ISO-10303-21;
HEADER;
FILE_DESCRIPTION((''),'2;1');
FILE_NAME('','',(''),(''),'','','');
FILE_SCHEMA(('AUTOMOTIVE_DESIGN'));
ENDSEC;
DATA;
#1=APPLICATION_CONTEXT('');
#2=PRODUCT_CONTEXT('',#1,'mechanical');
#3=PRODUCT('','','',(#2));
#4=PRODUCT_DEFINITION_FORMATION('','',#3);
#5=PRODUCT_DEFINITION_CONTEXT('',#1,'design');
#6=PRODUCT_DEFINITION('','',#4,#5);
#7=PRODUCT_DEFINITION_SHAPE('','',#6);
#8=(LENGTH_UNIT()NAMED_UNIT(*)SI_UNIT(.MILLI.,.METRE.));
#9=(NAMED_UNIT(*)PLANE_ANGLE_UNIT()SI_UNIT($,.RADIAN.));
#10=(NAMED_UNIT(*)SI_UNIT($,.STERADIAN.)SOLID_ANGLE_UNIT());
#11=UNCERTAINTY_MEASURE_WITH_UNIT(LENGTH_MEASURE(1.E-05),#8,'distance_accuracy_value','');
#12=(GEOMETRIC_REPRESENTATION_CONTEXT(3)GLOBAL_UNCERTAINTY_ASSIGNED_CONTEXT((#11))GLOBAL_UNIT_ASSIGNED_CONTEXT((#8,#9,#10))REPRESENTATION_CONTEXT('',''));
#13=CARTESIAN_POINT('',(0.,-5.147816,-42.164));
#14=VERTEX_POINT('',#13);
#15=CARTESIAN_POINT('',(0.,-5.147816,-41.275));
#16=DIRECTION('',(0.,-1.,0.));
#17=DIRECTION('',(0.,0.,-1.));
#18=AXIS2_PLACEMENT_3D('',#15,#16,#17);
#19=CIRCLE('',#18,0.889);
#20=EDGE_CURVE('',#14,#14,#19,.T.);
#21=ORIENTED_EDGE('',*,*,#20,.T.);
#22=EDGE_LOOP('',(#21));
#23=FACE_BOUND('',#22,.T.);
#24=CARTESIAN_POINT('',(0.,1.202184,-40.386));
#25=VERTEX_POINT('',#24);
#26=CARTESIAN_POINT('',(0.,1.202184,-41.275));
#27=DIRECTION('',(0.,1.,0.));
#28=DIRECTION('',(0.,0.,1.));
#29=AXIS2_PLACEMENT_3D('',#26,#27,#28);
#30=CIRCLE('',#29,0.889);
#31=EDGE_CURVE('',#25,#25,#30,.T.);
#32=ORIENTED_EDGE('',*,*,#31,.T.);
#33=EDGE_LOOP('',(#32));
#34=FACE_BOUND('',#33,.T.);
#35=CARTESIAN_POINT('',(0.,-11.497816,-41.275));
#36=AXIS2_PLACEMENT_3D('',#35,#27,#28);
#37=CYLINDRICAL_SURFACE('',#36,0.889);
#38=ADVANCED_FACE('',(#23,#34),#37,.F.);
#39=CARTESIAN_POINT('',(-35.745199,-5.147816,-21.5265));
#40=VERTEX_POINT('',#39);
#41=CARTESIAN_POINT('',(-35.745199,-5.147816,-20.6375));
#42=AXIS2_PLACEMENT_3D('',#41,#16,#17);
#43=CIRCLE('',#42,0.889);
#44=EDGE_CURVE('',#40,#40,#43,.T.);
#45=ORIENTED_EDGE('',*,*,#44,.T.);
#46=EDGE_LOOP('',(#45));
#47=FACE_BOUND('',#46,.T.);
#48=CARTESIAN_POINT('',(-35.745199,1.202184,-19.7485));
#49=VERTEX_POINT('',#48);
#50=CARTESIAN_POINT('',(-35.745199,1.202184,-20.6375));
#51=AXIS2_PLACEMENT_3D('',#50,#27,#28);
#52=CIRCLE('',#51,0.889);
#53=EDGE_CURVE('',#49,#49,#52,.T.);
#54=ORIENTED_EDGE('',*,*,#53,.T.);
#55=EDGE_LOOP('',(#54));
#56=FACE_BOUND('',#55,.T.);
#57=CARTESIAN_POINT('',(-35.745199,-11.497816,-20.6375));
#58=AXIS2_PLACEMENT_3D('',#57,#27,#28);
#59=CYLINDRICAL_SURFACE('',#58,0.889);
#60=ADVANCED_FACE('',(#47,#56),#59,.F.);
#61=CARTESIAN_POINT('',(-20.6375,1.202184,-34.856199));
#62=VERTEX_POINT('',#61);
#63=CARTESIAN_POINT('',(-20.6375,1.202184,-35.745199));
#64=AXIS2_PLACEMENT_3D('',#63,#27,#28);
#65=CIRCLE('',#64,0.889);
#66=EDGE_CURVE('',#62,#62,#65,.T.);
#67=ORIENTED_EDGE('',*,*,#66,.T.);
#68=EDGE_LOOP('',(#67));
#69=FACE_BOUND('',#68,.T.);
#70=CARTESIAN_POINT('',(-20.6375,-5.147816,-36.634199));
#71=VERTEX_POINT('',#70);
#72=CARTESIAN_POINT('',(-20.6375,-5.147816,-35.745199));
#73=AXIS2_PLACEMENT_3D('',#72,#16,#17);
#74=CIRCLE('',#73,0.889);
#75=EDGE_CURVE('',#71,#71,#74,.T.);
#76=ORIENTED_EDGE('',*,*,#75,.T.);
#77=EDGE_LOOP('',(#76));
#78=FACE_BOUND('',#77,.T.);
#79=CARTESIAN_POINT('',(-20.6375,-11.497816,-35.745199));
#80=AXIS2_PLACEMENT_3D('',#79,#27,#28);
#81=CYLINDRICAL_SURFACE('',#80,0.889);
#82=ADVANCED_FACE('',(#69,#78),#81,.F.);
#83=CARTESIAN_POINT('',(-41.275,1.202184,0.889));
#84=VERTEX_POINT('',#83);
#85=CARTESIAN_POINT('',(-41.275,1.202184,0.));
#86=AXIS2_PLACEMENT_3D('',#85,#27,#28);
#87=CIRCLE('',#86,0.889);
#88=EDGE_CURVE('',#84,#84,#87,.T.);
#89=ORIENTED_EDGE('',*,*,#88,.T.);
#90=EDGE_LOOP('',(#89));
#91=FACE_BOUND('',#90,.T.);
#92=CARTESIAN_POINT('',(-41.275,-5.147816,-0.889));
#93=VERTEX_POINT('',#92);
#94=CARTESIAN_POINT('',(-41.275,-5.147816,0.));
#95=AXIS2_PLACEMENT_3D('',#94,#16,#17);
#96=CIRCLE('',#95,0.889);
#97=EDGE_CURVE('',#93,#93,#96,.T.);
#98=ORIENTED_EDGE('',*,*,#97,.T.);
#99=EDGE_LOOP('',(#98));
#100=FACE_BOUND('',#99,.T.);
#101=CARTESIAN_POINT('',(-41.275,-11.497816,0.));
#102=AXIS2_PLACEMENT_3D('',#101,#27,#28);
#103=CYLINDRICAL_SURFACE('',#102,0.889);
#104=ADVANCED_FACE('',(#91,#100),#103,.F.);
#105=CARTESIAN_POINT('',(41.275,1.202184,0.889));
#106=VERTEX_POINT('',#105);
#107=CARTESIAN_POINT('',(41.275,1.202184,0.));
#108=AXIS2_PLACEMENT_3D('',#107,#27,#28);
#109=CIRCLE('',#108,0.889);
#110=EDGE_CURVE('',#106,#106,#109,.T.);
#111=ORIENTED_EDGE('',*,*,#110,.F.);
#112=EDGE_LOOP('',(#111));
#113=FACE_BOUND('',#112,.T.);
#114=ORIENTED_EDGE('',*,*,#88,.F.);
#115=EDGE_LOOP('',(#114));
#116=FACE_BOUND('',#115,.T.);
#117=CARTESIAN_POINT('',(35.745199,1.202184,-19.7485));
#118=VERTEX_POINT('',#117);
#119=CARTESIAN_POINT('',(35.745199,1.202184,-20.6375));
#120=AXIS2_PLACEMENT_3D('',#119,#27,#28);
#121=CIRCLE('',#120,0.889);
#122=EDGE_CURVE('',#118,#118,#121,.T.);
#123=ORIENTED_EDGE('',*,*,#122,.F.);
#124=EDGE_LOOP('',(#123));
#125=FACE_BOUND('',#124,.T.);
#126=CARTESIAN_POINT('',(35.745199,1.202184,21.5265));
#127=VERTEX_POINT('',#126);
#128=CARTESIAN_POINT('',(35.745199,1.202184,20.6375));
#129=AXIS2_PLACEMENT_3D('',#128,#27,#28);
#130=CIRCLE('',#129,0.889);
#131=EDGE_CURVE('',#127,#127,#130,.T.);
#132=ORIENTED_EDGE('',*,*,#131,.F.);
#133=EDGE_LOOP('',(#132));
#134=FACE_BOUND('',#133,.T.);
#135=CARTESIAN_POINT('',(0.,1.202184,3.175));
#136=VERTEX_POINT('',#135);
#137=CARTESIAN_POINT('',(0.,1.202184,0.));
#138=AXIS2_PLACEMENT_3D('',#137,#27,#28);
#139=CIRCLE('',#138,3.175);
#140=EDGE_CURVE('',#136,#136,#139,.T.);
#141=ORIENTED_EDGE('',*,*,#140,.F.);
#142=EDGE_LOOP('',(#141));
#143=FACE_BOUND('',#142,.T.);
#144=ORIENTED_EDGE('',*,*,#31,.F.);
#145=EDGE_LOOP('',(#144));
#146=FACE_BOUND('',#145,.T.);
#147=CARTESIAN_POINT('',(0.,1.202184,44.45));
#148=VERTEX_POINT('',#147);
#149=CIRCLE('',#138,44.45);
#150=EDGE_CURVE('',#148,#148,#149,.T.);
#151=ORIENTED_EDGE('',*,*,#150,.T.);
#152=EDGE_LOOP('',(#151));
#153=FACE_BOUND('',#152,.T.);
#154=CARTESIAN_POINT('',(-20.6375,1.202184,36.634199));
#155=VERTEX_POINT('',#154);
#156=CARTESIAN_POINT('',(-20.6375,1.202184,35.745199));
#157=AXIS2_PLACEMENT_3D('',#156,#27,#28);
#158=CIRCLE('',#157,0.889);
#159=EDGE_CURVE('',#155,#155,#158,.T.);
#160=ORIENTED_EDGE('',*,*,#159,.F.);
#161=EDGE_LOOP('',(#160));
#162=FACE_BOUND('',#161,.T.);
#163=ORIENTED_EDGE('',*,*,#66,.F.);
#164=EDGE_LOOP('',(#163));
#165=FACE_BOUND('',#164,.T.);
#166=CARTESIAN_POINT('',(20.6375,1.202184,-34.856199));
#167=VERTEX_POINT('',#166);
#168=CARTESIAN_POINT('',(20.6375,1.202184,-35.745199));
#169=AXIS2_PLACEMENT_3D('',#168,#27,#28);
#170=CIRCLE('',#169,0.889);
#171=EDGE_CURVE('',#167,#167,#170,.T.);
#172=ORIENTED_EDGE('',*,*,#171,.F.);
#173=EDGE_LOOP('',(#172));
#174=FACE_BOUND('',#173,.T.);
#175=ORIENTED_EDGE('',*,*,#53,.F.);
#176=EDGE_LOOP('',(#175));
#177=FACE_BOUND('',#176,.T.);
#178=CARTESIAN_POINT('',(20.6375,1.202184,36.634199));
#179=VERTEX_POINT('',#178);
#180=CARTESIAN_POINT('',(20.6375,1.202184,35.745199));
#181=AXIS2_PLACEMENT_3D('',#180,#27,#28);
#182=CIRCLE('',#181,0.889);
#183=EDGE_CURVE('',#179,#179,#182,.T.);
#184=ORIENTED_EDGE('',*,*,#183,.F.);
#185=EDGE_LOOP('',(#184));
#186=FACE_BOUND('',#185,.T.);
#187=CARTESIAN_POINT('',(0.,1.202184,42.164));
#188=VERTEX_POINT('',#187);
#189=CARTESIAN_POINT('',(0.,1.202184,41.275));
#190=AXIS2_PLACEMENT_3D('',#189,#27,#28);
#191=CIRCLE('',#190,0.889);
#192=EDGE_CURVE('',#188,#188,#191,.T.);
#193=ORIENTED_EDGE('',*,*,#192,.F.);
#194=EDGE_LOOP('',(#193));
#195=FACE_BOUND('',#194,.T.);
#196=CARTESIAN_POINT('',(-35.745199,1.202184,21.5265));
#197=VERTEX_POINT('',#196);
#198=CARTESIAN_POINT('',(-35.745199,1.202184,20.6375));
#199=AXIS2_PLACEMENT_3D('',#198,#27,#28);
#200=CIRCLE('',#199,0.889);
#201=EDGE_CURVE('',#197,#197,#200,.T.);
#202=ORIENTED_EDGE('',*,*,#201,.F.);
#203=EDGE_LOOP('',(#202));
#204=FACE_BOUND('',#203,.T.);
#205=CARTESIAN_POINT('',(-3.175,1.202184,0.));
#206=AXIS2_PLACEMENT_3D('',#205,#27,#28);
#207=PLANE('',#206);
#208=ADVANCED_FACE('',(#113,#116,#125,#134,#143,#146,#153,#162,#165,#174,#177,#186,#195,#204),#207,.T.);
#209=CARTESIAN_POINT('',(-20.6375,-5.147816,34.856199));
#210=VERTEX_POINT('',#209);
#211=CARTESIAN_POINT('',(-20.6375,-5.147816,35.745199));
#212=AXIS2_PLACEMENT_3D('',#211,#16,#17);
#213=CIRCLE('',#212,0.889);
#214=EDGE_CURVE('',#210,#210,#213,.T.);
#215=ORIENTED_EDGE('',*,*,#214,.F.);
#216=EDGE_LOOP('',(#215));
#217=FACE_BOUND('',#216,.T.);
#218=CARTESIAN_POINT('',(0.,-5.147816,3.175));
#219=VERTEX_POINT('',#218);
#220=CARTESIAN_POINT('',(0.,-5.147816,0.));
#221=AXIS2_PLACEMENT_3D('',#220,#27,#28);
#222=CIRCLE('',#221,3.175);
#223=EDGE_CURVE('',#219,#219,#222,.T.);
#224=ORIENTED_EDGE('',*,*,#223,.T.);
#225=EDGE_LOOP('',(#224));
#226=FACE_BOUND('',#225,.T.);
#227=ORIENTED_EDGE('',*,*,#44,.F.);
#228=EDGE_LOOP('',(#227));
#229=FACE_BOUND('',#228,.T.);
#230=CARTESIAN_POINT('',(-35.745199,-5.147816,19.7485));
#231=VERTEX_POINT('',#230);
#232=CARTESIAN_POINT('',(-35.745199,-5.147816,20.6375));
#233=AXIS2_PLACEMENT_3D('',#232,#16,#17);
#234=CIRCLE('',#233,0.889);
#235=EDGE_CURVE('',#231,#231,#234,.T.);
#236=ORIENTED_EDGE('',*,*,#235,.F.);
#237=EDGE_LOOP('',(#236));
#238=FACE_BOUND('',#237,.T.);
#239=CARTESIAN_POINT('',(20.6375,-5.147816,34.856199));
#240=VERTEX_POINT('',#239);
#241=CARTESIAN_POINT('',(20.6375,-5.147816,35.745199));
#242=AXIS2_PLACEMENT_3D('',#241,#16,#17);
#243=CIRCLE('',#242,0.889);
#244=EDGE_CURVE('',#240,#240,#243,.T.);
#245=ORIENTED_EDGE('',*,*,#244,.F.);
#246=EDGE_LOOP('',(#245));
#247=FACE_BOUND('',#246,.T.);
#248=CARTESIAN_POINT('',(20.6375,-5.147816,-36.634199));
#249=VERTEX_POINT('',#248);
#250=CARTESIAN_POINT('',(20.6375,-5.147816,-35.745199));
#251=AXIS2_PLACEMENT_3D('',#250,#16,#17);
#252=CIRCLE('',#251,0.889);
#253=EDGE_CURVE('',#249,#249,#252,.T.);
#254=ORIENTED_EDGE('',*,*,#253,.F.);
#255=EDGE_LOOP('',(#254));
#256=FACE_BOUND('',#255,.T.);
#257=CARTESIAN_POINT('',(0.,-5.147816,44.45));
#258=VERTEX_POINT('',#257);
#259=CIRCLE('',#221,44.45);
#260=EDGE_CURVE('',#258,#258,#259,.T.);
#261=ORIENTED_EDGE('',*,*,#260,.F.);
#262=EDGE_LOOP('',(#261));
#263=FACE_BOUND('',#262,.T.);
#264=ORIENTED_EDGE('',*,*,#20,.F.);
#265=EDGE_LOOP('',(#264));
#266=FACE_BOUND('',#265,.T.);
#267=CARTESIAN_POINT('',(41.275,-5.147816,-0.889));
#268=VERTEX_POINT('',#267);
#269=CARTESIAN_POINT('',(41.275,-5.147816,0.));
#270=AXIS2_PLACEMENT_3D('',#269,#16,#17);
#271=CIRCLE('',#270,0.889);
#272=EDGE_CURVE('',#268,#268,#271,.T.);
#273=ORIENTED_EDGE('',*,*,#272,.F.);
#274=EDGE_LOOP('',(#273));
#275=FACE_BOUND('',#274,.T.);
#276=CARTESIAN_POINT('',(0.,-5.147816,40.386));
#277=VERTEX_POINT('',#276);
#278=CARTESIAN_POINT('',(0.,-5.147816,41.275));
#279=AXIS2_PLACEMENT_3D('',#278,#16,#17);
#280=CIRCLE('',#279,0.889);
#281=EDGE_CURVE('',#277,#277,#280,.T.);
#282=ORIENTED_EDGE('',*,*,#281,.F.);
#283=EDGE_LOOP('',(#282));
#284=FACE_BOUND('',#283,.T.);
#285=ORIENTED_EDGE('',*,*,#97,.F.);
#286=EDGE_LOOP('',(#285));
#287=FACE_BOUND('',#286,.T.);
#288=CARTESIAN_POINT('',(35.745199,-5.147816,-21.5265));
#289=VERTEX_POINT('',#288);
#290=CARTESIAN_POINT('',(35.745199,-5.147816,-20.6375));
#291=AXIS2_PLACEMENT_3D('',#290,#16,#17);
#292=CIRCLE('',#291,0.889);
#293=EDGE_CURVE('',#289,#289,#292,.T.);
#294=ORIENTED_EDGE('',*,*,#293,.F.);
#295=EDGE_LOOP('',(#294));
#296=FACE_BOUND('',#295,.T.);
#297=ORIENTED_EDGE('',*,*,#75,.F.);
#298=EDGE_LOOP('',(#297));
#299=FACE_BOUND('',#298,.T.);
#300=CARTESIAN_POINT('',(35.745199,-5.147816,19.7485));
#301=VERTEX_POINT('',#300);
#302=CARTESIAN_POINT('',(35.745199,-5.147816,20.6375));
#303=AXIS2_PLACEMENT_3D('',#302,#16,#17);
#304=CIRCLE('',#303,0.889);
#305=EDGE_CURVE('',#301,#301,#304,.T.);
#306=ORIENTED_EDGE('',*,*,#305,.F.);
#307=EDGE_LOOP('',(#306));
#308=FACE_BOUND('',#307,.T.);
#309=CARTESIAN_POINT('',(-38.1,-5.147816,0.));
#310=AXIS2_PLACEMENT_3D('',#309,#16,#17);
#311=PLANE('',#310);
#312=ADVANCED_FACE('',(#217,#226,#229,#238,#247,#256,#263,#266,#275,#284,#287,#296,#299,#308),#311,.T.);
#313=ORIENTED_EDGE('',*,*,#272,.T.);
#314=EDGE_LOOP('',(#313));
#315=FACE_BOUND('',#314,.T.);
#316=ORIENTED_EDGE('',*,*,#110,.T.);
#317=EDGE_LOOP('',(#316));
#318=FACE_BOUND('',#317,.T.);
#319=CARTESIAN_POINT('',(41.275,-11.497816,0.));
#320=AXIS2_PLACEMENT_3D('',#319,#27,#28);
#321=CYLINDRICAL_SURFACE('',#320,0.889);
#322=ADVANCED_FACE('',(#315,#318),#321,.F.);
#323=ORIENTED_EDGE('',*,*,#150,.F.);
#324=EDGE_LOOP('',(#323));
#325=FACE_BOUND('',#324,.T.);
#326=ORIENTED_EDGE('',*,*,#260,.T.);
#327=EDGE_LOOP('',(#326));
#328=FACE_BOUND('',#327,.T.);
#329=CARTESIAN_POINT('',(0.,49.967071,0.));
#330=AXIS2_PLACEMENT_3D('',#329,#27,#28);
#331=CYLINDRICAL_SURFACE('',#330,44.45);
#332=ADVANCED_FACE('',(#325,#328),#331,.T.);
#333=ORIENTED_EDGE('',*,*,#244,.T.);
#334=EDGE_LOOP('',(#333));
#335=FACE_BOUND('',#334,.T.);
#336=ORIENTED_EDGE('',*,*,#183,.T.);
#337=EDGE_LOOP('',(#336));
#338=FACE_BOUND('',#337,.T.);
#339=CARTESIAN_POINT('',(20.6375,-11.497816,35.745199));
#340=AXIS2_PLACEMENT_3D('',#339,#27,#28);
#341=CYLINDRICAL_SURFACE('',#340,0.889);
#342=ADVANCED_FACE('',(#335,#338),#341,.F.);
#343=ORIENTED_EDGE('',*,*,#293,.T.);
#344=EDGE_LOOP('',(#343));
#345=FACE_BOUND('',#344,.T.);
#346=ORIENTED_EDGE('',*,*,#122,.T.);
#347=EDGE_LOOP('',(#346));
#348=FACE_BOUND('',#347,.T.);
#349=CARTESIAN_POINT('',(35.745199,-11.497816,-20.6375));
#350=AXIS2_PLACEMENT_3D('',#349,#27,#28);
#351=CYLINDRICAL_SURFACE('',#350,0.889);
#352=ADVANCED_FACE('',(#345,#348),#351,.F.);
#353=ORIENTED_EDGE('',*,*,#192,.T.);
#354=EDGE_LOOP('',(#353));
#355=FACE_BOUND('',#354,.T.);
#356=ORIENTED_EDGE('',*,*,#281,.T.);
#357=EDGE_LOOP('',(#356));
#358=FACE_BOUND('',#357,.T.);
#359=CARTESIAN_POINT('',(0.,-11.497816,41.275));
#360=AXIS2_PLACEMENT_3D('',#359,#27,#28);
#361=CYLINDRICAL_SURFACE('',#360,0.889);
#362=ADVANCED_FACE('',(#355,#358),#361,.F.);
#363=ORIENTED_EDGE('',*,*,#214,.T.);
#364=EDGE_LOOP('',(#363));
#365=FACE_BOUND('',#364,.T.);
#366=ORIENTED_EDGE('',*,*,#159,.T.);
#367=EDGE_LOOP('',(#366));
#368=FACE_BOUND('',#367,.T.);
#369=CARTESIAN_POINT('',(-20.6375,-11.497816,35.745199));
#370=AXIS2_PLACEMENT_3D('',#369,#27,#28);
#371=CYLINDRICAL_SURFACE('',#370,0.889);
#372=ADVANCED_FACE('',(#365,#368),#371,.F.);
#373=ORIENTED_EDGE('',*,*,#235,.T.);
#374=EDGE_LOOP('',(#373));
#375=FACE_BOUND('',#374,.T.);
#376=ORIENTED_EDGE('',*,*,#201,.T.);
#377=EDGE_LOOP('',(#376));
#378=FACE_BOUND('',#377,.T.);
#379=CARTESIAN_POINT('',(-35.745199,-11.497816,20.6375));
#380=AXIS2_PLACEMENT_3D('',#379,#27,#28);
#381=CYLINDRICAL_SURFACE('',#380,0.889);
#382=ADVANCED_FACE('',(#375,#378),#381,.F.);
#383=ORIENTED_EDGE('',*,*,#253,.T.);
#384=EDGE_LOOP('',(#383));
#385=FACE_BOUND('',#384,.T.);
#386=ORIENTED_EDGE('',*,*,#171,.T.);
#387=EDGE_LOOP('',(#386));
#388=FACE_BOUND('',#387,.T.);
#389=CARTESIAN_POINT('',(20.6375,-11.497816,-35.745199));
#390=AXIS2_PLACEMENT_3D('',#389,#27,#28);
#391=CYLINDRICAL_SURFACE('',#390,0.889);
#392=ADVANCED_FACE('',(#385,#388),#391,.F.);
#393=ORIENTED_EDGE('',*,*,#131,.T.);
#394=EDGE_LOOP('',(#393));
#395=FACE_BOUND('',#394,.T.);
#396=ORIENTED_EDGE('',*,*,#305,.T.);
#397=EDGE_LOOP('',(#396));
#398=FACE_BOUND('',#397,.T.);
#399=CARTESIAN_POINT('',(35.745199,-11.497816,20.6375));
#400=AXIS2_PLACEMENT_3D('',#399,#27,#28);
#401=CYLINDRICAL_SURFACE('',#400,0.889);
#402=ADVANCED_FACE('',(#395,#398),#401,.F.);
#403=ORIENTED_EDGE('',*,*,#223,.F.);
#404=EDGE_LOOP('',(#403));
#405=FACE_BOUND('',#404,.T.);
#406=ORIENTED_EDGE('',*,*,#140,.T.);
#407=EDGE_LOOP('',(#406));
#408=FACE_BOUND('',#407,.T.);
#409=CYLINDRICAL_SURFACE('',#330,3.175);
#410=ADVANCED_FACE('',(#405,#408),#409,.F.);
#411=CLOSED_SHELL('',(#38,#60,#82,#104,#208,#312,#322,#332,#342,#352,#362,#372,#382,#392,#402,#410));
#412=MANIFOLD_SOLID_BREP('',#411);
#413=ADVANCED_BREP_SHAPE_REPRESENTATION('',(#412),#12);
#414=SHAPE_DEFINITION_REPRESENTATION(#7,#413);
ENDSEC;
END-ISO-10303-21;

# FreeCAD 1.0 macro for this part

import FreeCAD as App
import Part
import Sketcher

V = App.Vector
Q = App.Units.Quantity


def add_polygon(sketch, points):
    """Adds a closed chain of lines whose ends are joined by coincident constraints."""
    first, n = sketch.GeometryCount, len(points)
    for a, b in zip(points, points[1:] + points[:1]):
        sketch.addGeometry(Part.LineSegment(App.Vector(*a, 0), App.Vector(*b, 0)), False)
    for i in range(n):
        sketch.addConstraint(Sketcher.Constraint("Coincident", first + i, 2, first + (i + 1) % n, 1))

doc = App.newDocument("Part")
params = doc.addObject("Spreadsheet::Sheet", "Params")
for row, (alias, value) in enumerate([
    ("sketch1_height", "0.25 in"),
    ("sketch1_width", "1.625 in"),
    ("revolution_angle", "360 deg"),
    ("sketch2_diameter", "0.07 in"),
    ("pocket1_length", "0.5 in"),
], start=1):
    params.set(f"A{row}", alias)
    params.set(f"B{row}", "=" + value)
    params.setAlias(f"B{row}", alias)

body = doc.addObject("PartDesign::Body", "Body")

sketch1 = body.newObject("Sketcher::SketchObject", "Sketch")
sketch1.AttachmentSupport = (doc.getObject("XY_Plane"), [""])
sketch1.MapMode = "FlatFace"
add_polygon(sketch1, [(-44, -5), (-3, -5), (-3, 1), (-44, 1)])
sketch1.addConstraint([
    Sketcher.Constraint("Horizontal", 0),
    Sketcher.Constraint("Vertical", 1),
    Sketcher.Constraint("Horizontal", 2),
    Sketcher.Constraint("Vertical", 3),
    Sketcher.Constraint("DistanceY", 1, 1, 1, 2, Q("0.25 in")),
    Sketcher.Constraint("DistanceX", 0, 1, 0, 2, Q("1.625 in")),
    Sketcher.Constraint("DistanceX", 2, 2, -1, 1, Q("1.75 in")),
    Sketcher.Constraint("DistanceY", 0, 2, -1, 1, 5.147816),
])
sketch1.setExpression("Constraints[8]", "Params.sketch1_height")
sketch1.setExpression("Constraints[9]", "Params.sketch1_width")
revolution = body.newObject("PartDesign::Revolution", "Revolution")
revolution.Profile = sketch1
revolution.ReferenceAxis = (sketch1, ["V_Axis"])
revolution.setExpression("Angle", "Params.revolution_angle")

sketch2 = body.newObject("Sketcher::SketchObject", "Sketch001")
sketch2.AttachmentSupport = (doc.getObject("XZ_Plane"), [""])
sketch2.MapMode = "FlatFace"
sketch2.AttachmentOffset = App.Placement(V(0, 0, -1.202184), App.Rotation())
sketch2.addGeometry([
    Part.Circle(V(-41.3, 0, 0), V(0, 0, 1), 0.9),
    Part.Circle(V(-35.7, -20.6, 0), V(0, 0, 1), 0.9),
    Part.Circle(V(-20.6, -35.7, 0), V(0, 0, 1), 0.9),
    Part.Circle(V(0, -41.3, 0), V(0, 0, 1), 0.9),
    Part.Circle(V(20.6, -35.7, 0), V(0, 0, 1), 0.9),
    Part.Circle(V(35.7, -20.6, 0), V(0, 0, 1), 0.9),
    Part.Circle(V(41.3, 0, 0), V(0, 0, 1), 0.9),
    Part.Circle(V(35.7, 20.6, 0), V(0, 0, 1), 0.9),
    Part.Circle(V(20.6, 35.7, 0), V(0, 0, 1), 0.9),
    Part.Circle(V(0, 41.3, 0), V(0, 0, 1), 0.9),
    Part.Circle(V(-20.6, 35.7, 0), V(0, 0, 1), 0.9),
    Part.Circle(V(-35.7, 20.6, 0), V(0, 0, 1), 0.9),
], False)
sketch2.addConstraint([
    Sketcher.Constraint("Equal", 0, 1),
    Sketcher.Constraint("Equal", 1, 2),
    Sketcher.Constraint("Equal", 2, 3),
    Sketcher.Constraint("Equal", 3, 4),
    Sketcher.Constraint("Equal", 4, 5),
    Sketcher.Constraint("Equal", 5, 6),
    Sketcher.Constraint("Equal", 6, 7),
    Sketcher.Constraint("Equal", 7, 8),
    Sketcher.Constraint("Equal", 8, 9),
    Sketcher.Constraint("Equal", 9, 10),
    Sketcher.Constraint("Equal", 10, 11),
    Sketcher.Constraint("Symmetric", 0, 3, 6, 3, -1, 1),
    Sketcher.Constraint("Symmetric", 1, 3, 7, 3, -1, 1),
    Sketcher.Constraint("Symmetric", 2, 3, 8, 3, -1, 1),
    Sketcher.Constraint("Symmetric", 3, 3, 9, 3, -1, 1),
    Sketcher.Constraint("Symmetric", 4, 3, 10, 3, -1, 1),
    Sketcher.Constraint("Symmetric", 5, 3, 11, 3, -1, 1),
    Sketcher.Constraint("Symmetric", 2, 3, 4, 3, -2),
    Sketcher.Constraint("Symmetric", 1, 3, 5, 3, -2),
    Sketcher.Constraint("PointOnObject", 0, 3, -1),
    Sketcher.Constraint("PointOnObject", 3, 3, -2),
    Sketcher.Constraint("Diameter", 0, Q("0.07 in")),
    Sketcher.Constraint("DistanceX", 0, 3, -1, 1, Q("1.625 in")),
    Sketcher.Constraint("DistanceY", 1, 3, -1, 1, Q("0.8125 in")),
    Sketcher.Constraint("DistanceX", 2, 3, -1, 1, Q("0.8125 in")),
    Sketcher.Constraint("DistanceY", 3, 3, -1, 1, Q("1.625 in")),
    Sketcher.Constraint("DistanceX", 1, 3, -1, 1, 35.745199),
    Sketcher.Constraint("DistanceY", 2, 3, -1, 1, 35.745199),
])
sketch2.setExpression("Constraints[21]", "Params.sketch2_diameter")
pocket1 = body.newObject("PartDesign::Pocket", "Pocket")
pocket1.Profile = sketch2
pocket1.setExpression("Length", "Params.pocket1_length")
pocket1.Reversed = True

doc.recompute()
